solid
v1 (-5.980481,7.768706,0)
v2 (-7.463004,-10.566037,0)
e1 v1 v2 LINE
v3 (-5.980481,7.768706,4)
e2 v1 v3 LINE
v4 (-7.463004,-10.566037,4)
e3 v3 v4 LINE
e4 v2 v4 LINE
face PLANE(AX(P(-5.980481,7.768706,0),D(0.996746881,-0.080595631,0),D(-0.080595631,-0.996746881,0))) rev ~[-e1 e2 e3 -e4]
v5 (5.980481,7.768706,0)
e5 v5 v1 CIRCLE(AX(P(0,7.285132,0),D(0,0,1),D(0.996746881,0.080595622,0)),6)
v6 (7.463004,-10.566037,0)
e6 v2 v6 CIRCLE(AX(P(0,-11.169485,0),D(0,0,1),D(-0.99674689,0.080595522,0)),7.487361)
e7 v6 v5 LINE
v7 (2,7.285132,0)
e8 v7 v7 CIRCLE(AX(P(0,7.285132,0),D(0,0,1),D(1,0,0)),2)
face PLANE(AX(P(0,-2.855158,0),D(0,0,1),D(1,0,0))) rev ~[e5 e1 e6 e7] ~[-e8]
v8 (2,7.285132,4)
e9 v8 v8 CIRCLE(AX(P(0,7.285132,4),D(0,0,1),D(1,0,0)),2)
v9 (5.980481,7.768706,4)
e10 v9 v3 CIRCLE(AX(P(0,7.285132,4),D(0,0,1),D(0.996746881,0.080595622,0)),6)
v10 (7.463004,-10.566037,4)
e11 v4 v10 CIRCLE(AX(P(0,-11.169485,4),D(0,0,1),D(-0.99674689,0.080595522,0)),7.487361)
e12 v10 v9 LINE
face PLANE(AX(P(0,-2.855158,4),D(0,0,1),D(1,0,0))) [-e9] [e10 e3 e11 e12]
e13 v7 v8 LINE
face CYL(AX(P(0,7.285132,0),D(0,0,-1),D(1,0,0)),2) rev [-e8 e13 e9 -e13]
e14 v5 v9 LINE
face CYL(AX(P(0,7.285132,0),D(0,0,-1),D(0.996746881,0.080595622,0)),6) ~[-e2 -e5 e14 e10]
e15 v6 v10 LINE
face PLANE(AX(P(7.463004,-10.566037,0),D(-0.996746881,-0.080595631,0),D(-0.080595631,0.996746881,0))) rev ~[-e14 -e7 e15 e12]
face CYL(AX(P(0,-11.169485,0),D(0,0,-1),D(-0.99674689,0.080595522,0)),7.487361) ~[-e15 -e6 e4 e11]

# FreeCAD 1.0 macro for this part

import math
import FreeCAD as App
import Part
import Sketcher

V = App.Vector
Q = App.Units.Quantity

doc = App.newDocument("Part")
params = doc.addObject("Spreadsheet::Sheet", "Params")
for row, (alias, value) in enumerate([
    ("sketch1_diameter", "4 mm"),
    ("sketch1_radius", "6 mm"),
    ("pad1_length", "4 mm"),
], start=1):
    params.set(f"A{row}", alias)
    params.set(f"B{row}", "=" + value)
    params.setAlias(f"B{row}", alias)

body = doc.addObject("PartDesign::Body", "Body")

# Sketch on XY plane
sketch1 = body.newObject("Sketcher::SketchObject", "Sketch")
sketch1.AttachmentSupport = (doc.getObject("XY_Plane"), [""])
sketch1.MapMode = "FlatFace"
sketch1.addGeometry([
    Part.LineSegment(V(7.463004, -10.566037, 0), V(5.980481, 7.768706, 0)),  # 0
    Part.ArcOfCircle(Part.Circle(V(0, 7.285132, 0), V(0, 0, 1), 6), math.radians(4.622803), math.radians(175.377197)),  # 1
    Part.LineSegment(V(-5.980481, 7.768706, 0), V(-7.463004, -10.566037, 0)),  # 2
    Part.ArcOfCircle(Part.Circle(V(0, -11.169485, 0), V(0, 0, 1), 7.487361), math.radians(175.377203), math.radians(364.622797)),  # 3
    Part.Circle(V(0, 7.285132, 0), V(0, 0, 1), 2),  # 4
], False)
sketch1.addConstraint([
    Sketcher.Constraint("Tangent", 0, 2, 1, 1),
    Sketcher.Constraint("Tangent", 1, 2, 2, 1),
    Sketcher.Constraint("Tangent", 2, 2, 3, 1),
    Sketcher.Constraint("Tangent", 3, 2, 0, 1),
    Sketcher.Constraint("Coincident", 4, 3, 1, 3),
    Sketcher.Constraint("Symmetric", 0, 2, 1, 2, -2),
    Sketcher.Constraint("Diameter", 4, Q("4 mm")),
    Sketcher.Constraint("Radius", 1, Q("6 mm")),
    Sketcher.Constraint("Radius", 3, Q("7.487361 mm")),
    Sketcher.Constraint("DistanceY", 3, 3, 0, 2, Q("18.938191 mm")),
    Sketcher.Constraint("DistanceY", -1, 1, 1, 3, Q("7.285132 mm")),
])
sketch1.setExpression("Constraints[6]", "Params.sketch1_diameter")
sketch1.setExpression("Constraints[7]", "Params.sketch1_radius")
pad1 = body.newObject("PartDesign::Pad", "Pad")
pad1.Profile = sketch1
pad1.setExpression("Length", "Params.pad1_length")

doc.recompute()
